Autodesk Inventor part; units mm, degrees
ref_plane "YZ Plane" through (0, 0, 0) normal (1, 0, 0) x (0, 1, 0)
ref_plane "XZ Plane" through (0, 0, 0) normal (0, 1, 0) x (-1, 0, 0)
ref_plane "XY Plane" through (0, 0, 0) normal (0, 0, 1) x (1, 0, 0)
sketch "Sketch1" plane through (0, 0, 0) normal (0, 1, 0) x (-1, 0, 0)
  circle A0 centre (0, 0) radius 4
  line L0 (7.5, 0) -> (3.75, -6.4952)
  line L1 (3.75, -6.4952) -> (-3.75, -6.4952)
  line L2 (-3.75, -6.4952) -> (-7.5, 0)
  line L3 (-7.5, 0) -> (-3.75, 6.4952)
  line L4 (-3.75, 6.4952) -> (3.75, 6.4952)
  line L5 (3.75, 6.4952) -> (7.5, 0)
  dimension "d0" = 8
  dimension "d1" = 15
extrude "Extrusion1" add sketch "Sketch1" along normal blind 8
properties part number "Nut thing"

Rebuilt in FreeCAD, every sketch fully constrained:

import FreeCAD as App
import Part
import Sketcher

V = App.Vector
Q = App.Units.Quantity


def add_polygon(sketch, points):
    """Adds a closed chain of lines whose ends are joined by coincident constraints."""
    first, n = sketch.GeometryCount, len(points)
    for a, b in zip(points, points[1:] + points[:1]):
        sketch.addGeometry(Part.LineSegment(App.Vector(*a, 0), App.Vector(*b, 0)), False)
    for i in range(n):
        sketch.addConstraint(Sketcher.Constraint("Coincident", first + i, 2, first + (i + 1) % n, 1))

doc = App.newDocument("Part")
params = doc.addObject("Spreadsheet::Sheet", "Params")
for row, (alias, value) in enumerate([
    ("sketch1_diameter", "8 mm"),
    ("sketch1_width", "7.5 mm"),
    ("pad1_length", "8 mm"),
], start=1):
    params.set(f"A{row}", alias)
    params.set(f"B{row}", "=" + value)
    params.setAlias(f"B{row}", alias)

body = doc.addObject("PartDesign::Body", "Body")

# Sketch on XZ plane
sketch1 = body.newObject("Sketcher::SketchObject", "Sketch")
sketch1.AttachmentSupport = (doc.getObject("XZ_Plane"), [""])
sketch1.MapMode = "FlatFace"
add_polygon(sketch1, [(-3.75, -6.4952), (-7.5, 0), (-3.75, 6.4952), (3.75, 6.4952), (7.5, 0), (3.75, -6.4952)])  # lines 0-5
sketch1.addGeometry(Part.Circle(V(0, 0, 0), V(0, 0, 1), 4), False)  # 6
sketch1.addConstraint(Sketcher.Constraint("Horizontal", 2))
sketch1.addConstraint(Sketcher.Constraint("Horizontal", 5))
sketch1.addConstraint(Sketcher.Constraint("Coincident", 6, 3, -1, 1))
sketch1.addConstraint(Sketcher.Constraint("Symmetric", 0, 2, 3, 2, -1, 1))
sketch1.addConstraint(Sketcher.Constraint("Symmetric", 1, 2, 4, 2, -1, 1))
sketch1.addConstraint(Sketcher.Constraint("PointOnObject", 0, 2, -1))
sketch1.addConstraint(Sketcher.Constraint("Parallel", 0, 3))
sketch1.addConstraint(Sketcher.Constraint("Vertical", 2, 2, 4, 2))
sketch1.addConstraint(Sketcher.Constraint("Diameter", 6, Q("8 mm")))
sketch1.addConstraint(Sketcher.Constraint("DistanceX", 0, 2, 3, 2, Q("15 mm")))
sketch1.addConstraint(Sketcher.Constraint("Angle", 0, Q("120 deg")))
sketch1.addConstraint(Sketcher.Constraint("DistanceX", 2, 1, 2, 2, Q("7.5 mm")))
sketch1.setExpression("Constraints[14]", "Params.sketch1_diameter")
sketch1.setExpression("Constraints[17]", "Params.sketch1_width")
pad1 = body.newObject("PartDesign::Pad", "Pad")
pad1.Profile = sketch1
pad1.setExpression("Length", "Params.pad1_length")
pad1.Reversed = True

doc.recompute()
